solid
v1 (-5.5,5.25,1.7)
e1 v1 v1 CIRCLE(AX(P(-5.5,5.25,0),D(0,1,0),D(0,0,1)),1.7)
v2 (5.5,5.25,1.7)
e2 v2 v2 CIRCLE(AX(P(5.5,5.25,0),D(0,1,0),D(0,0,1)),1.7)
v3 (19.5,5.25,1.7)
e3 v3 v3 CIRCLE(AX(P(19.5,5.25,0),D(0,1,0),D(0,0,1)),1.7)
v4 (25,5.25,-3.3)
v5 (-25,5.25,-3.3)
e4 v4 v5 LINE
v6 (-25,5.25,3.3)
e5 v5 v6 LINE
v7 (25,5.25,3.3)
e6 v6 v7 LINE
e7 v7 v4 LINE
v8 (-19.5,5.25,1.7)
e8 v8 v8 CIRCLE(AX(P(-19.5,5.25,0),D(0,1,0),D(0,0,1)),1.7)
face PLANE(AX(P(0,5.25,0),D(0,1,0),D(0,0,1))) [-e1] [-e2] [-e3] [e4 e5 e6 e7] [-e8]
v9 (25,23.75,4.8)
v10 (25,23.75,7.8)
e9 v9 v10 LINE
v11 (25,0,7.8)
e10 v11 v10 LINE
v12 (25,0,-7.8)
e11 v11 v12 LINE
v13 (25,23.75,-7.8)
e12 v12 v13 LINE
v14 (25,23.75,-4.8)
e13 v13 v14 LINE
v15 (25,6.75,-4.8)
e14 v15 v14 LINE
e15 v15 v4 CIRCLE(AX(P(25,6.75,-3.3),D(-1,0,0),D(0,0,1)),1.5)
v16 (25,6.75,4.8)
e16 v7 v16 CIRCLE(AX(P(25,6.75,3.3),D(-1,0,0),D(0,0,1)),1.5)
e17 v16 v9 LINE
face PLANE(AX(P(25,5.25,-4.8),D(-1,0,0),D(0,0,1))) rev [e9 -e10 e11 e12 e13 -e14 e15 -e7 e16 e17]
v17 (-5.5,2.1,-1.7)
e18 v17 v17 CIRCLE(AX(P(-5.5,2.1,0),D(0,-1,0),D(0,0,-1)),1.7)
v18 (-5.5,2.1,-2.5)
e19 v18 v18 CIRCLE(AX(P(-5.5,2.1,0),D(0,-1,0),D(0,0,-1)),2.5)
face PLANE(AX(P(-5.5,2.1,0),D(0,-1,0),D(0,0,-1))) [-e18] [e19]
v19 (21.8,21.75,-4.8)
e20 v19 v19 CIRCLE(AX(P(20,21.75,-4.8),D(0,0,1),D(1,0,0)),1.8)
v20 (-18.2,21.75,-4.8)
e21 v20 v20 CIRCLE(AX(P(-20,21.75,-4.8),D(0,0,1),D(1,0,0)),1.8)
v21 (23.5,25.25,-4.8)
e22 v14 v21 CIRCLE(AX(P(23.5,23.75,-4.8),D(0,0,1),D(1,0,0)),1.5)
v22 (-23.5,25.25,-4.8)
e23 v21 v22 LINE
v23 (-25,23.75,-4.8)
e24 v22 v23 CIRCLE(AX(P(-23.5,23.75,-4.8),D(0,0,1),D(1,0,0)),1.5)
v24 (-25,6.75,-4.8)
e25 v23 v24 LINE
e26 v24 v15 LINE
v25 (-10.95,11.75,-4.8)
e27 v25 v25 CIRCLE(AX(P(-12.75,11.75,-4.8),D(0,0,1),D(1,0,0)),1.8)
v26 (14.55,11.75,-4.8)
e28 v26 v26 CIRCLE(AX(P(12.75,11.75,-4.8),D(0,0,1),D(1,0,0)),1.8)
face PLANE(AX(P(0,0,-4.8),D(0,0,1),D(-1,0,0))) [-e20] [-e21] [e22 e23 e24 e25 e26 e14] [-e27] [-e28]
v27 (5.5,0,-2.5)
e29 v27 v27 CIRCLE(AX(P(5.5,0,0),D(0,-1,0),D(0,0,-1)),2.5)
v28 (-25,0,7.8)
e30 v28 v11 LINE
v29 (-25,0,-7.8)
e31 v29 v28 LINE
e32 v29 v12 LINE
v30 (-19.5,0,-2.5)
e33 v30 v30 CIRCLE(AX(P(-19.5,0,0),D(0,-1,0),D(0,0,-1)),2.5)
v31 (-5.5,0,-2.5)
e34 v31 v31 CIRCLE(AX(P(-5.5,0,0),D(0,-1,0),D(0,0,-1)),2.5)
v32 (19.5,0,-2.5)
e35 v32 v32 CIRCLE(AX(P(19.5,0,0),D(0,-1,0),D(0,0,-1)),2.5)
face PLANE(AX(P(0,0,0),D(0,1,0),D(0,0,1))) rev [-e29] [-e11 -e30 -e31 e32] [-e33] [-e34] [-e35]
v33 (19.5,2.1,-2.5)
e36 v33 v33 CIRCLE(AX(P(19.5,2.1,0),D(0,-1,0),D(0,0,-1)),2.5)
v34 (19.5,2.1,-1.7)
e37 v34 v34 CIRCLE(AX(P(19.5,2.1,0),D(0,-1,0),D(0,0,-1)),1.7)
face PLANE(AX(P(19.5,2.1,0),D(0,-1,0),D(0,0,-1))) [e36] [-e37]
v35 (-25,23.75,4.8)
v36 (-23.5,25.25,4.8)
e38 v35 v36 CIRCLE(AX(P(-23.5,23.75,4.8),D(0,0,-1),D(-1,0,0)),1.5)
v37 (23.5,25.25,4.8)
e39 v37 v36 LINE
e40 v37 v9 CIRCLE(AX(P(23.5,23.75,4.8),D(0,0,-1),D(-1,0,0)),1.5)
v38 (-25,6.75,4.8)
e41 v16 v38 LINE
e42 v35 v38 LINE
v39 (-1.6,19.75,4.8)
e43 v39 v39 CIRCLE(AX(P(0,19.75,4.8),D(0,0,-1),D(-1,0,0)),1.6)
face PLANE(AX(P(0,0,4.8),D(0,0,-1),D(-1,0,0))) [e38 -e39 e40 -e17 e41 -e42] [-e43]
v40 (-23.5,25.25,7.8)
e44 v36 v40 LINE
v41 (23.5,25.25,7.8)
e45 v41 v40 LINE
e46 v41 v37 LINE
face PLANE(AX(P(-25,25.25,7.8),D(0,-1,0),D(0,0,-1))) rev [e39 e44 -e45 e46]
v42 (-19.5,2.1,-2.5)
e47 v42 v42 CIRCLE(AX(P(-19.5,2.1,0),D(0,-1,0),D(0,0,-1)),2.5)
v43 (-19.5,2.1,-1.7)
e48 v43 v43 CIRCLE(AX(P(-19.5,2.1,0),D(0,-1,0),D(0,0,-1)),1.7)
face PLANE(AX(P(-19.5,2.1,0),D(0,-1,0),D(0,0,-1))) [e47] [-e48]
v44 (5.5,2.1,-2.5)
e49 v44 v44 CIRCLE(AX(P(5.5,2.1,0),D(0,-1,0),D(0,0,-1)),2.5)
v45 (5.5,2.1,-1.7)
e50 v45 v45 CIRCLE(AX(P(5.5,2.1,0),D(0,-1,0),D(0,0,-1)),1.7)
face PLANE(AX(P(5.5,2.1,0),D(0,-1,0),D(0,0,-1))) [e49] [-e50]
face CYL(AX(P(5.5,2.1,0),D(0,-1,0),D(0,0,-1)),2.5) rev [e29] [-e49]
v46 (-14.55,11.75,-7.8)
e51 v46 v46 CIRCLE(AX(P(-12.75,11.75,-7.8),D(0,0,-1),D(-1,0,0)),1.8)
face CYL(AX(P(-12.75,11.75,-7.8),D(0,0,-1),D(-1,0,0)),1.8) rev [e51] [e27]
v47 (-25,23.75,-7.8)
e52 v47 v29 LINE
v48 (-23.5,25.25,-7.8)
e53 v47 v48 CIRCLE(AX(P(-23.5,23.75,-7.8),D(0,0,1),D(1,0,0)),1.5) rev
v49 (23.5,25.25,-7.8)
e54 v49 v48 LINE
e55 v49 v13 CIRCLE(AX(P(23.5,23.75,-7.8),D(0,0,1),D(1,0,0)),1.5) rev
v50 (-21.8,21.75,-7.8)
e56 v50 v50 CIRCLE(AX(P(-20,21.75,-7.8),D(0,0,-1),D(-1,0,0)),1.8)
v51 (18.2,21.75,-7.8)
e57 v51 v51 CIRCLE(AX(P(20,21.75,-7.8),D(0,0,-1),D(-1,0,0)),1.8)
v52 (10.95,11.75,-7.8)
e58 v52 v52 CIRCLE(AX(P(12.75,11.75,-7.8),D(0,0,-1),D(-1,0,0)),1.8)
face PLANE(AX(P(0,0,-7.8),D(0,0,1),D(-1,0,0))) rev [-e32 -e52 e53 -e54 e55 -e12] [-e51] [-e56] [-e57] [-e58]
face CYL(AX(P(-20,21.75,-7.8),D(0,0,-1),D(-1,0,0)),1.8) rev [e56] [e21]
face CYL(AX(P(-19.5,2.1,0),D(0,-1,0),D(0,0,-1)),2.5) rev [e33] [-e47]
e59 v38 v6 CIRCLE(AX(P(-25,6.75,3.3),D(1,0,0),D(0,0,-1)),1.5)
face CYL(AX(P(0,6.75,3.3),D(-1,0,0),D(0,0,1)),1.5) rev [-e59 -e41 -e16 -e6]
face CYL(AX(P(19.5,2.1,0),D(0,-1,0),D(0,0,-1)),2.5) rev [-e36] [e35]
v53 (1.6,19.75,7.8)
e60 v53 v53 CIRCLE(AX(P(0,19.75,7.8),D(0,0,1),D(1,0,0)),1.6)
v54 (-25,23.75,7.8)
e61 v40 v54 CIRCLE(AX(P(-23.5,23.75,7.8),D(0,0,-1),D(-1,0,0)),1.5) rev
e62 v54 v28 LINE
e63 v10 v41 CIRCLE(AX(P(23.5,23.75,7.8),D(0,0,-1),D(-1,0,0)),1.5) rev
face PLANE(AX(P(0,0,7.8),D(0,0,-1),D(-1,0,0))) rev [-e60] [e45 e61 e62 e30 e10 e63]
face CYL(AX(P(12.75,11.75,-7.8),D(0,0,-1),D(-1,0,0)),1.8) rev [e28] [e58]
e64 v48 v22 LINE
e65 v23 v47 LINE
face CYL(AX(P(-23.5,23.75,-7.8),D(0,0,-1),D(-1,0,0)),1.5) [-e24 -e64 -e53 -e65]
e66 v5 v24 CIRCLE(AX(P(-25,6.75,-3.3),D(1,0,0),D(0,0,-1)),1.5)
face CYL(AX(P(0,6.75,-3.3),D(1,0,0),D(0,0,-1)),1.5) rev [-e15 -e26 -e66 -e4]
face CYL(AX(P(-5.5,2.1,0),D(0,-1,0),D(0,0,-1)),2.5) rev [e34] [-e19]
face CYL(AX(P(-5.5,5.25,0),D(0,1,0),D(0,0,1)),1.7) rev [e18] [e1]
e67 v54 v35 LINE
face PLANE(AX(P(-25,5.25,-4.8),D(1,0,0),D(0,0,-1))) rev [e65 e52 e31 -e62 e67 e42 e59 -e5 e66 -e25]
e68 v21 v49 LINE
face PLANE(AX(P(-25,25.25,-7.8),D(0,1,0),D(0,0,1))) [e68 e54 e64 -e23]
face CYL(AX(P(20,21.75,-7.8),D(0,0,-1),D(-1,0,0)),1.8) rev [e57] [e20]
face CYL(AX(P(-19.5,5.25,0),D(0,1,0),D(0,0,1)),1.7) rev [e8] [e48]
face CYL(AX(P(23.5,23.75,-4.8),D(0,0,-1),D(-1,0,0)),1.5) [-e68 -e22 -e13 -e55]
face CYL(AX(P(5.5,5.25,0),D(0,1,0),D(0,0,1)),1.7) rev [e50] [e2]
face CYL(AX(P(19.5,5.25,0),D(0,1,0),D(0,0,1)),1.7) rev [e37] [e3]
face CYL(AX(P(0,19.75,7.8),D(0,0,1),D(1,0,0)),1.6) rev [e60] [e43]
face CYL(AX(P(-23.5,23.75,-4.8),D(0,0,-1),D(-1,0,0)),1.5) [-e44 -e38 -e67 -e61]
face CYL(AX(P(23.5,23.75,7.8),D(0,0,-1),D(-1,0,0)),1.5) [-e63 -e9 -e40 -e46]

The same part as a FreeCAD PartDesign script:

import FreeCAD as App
import Part
import Sketcher
Q = App.Units.Quantity


def edges_at(feature, points):
    """Names of the edges that pass closest to the given points."""
    edges = feature.Shape.Edges
    near = lambda p: min(range(len(edges)), key=lambda i: edges[i].distToShape(Part.Vertex(*p))[0])
    return sorted({f"Edge{near(p) + 1}" for p in points})


def add_polygon(sketch, points):
    """Adds a closed chain of lines whose ends are joined by coincident constraints."""
    first, n = sketch.GeometryCount, len(points)
    for a, b in zip(points, points[1:] + points[:1]):
        sketch.addGeometry(Part.LineSegment(App.Vector(*a, 0), App.Vector(*b, 0)), False)
    for i in range(n):
        sketch.addConstraint(Sketcher.Constraint("Coincident", first + i, 2, first + (i + 1) % n, 1))

doc = App.newDocument("Part")
body = doc.addObject("PartDesign::Body", "Body")

# Sketch on XZ plane
sketch1 = doc.addObject("Sketcher::SketchObject", "Sketch")
body.addObject(sketch1)
sketch1.AttachmentSupport = (doc.XZ_Plane, [""])
sketch1.MapMode = "FlatFace"
add_polygon(sketch1, [(-25, -5), (-25, 5), (25, 5), (25, -5)])  # lines 0-3
sketch1.addConstraint(Sketcher.Constraint("Vertical", 0))
sketch1.addConstraint(Sketcher.Constraint("Horizontal", 1))
sketch1.addConstraint(Sketcher.Constraint("Vertical", 2))
sketch1.addConstraint(Sketcher.Constraint("Horizontal", 3))
sketch1.addConstraint(Sketcher.Constraint("Symmetric", 0, 2, 2, 2, -1, 1))
sketch1.addConstraint(Sketcher.Constraint("DistanceX", 1, 1, 1, 2, Q("50 mm")))
sketch1.addConstraint(Sketcher.Constraint("DistanceY", 0, 1, 0, 2, Q("9.6 mm")))
pad1 = doc.addObject("PartDesign::Pad", "Pad")
body.addObject(pad1)
pad1.Profile = sketch1
pad1.Length = 5.25
pad1.Reversed = True

# Sketch on XZ plane
sketch2 = doc.addObject("Sketcher::SketchObject", "Sketch001")
body.addObject(sketch2)
sketch2.AttachmentSupport = (doc.XZ_Plane, [""])
sketch2.MapMode = "FlatFace"
sketch2.addGeometry(Part.Circle(App.Vector(-19.5, 0, 0), App.Vector(0, 0, 1), 2.5), False)
sketch2.addGeometry(Part.Circle(App.Vector(-5.5, 0, 0), App.Vector(0, 0, 1), 2.5), False)
sketch2.addGeometry(Part.Circle(App.Vector(5.5, 0, 0), App.Vector(0, 0, 1), 2.5), False)
sketch2.addGeometry(Part.Circle(App.Vector(19.5, 0, 0), App.Vector(0, 0, 1), 2.5), False)
sketch2.addConstraint(Sketcher.Constraint("Equal", 0, 1))
sketch2.addConstraint(Sketcher.Constraint("Equal", 1, 2))
sketch2.addConstraint(Sketcher.Constraint("Equal", 2, 3))
sketch2.addConstraint(Sketcher.Constraint("Symmetric", 1, 3, 2, 3, -1, 1))
sketch2.addConstraint(Sketcher.Constraint("Symmetric", 0, 3, 3, 3, -1, 1))
sketch2.addConstraint(Sketcher.Constraint("PointOnObject", 0, 3, -1))
sketch2.addConstraint(Sketcher.Constraint("PointOnObject", 1, 3, -1))
sketch2.addConstraint(Sketcher.Constraint("Diameter", 0, Q("5 mm")))
sketch2.addConstraint(Sketcher.Constraint("DistanceX", 0, 3, 1, 3, Q("14 mm")))
sketch2.addConstraint(Sketcher.Constraint("DistanceX", 1, 3, 2, 3, Q("11 mm")))
pocket1 = doc.addObject("PartDesign::Pocket", "Pocket")
body.addObject(pocket1)
pocket1.Profile = sketch2
pocket1.Length = 2.1

# Sketch on XZ plane
sketch3 = doc.addObject("Sketcher::SketchObject", "Sketch002")
body.addObject(sketch3)
sketch3.AttachmentSupport = (doc.XZ_Plane, [""])
sketch3.MapMode = "FlatFace"
sketch3.AttachmentOffset = App.Placement(App.Vector(0, 0, -5.25), App.Rotation())
sketch3.addGeometry(Part.Circle(App.Vector(-19.5, 0, 0), App.Vector(0, 0, 1), 1.7), False)
sketch3.addGeometry(Part.Circle(App.Vector(-5.5, 0, 0), App.Vector(0, 0, 1), 1.7), False)
sketch3.addGeometry(Part.Circle(App.Vector(5.5, 0, 0), App.Vector(0, 0, 1), 1.7), False)
sketch3.addGeometry(Part.Circle(App.Vector(19.5, 0, 0), App.Vector(0, 0, 1), 1.7), False)
sketch3.addConstraint(Sketcher.Constraint("Equal", 0, 1))
sketch3.addConstraint(Sketcher.Constraint("Equal", 1, 2))
sketch3.addConstraint(Sketcher.Constraint("Equal", 2, 3))
sketch3.addConstraint(Sketcher.Constraint("Symmetric", 1, 3, 2, 3, -1, 1))
sketch3.addConstraint(Sketcher.Constraint("Symmetric", 0, 3, 3, 3, -1, 1))
sketch3.addConstraint(Sketcher.Constraint("PointOnObject", 0, 3, -1))
sketch3.addConstraint(Sketcher.Constraint("PointOnObject", 1, 3, -1))
sketch3.addConstraint(Sketcher.Constraint("Diameter", 0, Q("3.4 mm")))
sketch3.addConstraint(Sketcher.Constraint("DistanceX", 0, 3, 1, 3, Q("14 mm")))
sketch3.addConstraint(Sketcher.Constraint("DistanceX", 1, 3, 2, 3, Q("11 mm")))
doc.recompute()
hole = doc.addObject("PartDesign::Hole", "Hole")
body.addObject(hole)
hole.Profile = sketch3
hole.ThreadType = "None"
hole.Diameter = 3.4
hole.DepthType = "Dimension"
hole.Depth = 7.978537
hole.DrillPoint = "Angled"
hole.DrillPointAngle = 118
hole.Reversed = True

# Sketch on XY plane
sketch4 = doc.addObject("Sketcher::SketchObject", "Sketch003")
body.addObject(sketch4)
sketch4.AttachmentSupport = (doc.XY_Plane, [""])
sketch4.MapMode = "FlatFace"
sketch4.AttachmentOffset = App.Placement(App.Vector(0, 0, 4.8), App.Rotation())
add_polygon(sketch4, [(-25, 25), (-25, 0), (25, 0), (25, 25)])  # lines 0-3
sketch4.addConstraint(Sketcher.Constraint("Vertical", 0))
sketch4.addConstraint(Sketcher.Constraint("Horizontal", 1))
sketch4.addConstraint(Sketcher.Constraint("Vertical", 2))
sketch4.addConstraint(Sketcher.Constraint("Horizontal", 3))
sketch4.addConstraint(Sketcher.Constraint("Symmetric", 0, 2, 1, 2, -1, 1))
sketch4.addConstraint(Sketcher.Constraint("DistanceX", 1, 1, 1, 2, Q("50 mm")))
sketch4.addConstraint(Sketcher.Constraint("DistanceY", 0, 2, 0, 1, Q("25.25 mm")))
pad2 = doc.addObject("PartDesign::Pad", "Pad001")
body.addObject(pad2)
pad2.Profile = sketch4
pad2.Length = 3
doc.recompute()

mirrored = doc.addObject("PartDesign::Mirrored", "Mirrored")
body.addObject(mirrored)
mirrored.Originals = [pad2]
mirrored.MirrorPlane = (doc.XY_Plane, [""])
body.Tip = mirrored
doc.recompute()

fillet = doc.addObject("PartDesign::Fillet", "Fillet")
body.addObject(fillet)
fillet.Base = (mirrored, edges_at(mirrored, [(0, 5.25, 4.8), (0, 5.25, -4.8)]))
fillet.Radius = 1.5

# Sketch on XY plane
sketch5 = doc.addObject("Sketcher::SketchObject", "Sketch004")
body.addObject(sketch5)
sketch5.AttachmentSupport = (doc.XY_Plane, [""])
sketch5.MapMode = "FlatFace"
sketch5.AttachmentOffset = App.Placement(App.Vector(0, 0, 7.8), App.Rotation())
sketch5.addGeometry(Part.Circle(App.Vector(0, 19.8, 0), App.Vector(0, 0, 1), 1.6), False)
sketch5.addConstraint(Sketcher.Constraint("PointOnObject", 0, 3, -2))
sketch5.addConstraint(Sketcher.Constraint("Diameter", 0, Q("3.2 mm")))
sketch5.addConstraint(Sketcher.Constraint("DistanceY", -1, 1, 0, 3, Q("19.75 mm")))
doc.recompute()
hole2 = doc.addObject("PartDesign::Hole", "Hole001")
body.addObject(hole2)
hole2.Profile = sketch5
hole2.ThreadType = "None"
hole2.Diameter = 3.2
hole2.DepthType = "Dimension"
hole2.Depth = 3.038623
hole2.DrillPoint = "Angled"
hole2.DrillPointAngle = 118

# Sketch on XY plane
sketch6 = doc.addObject("Sketcher::SketchObject", "Sketch005")
body.addObject(sketch6)
sketch6.AttachmentSupport = (doc.XY_Plane, [""])
sketch6.MapMode = "FlatFace"
sketch6.AttachmentOffset = App.Placement(App.Vector(0, 0, -7.8), App.Rotation())
sketch6.addGeometry(Part.Circle(App.Vector(20, 21.8, 0), App.Vector(0, 0, 1), 1.8), False)
sketch6.addGeometry(Part.Circle(App.Vector(-20, 21.8, 0), App.Vector(0, 0, 1), 1.8), False)
sketch6.addGeometry(Part.Circle(App.Vector(-12.8, 11.8, 0), App.Vector(0, 0, 1), 1.8), False)
sketch6.addGeometry(Part.Circle(App.Vector(12.8, 11.8, 0), App.Vector(0, 0, 1), 1.8), False)
sketch6.addConstraint(Sketcher.Constraint("Equal", 0, 1))
sketch6.addConstraint(Sketcher.Constraint("Equal", 1, 2))
sketch6.addConstraint(Sketcher.Constraint("Equal", 2, 3))
sketch6.addConstraint(Sketcher.Constraint("Symmetric", 0, 3, 1, 3, -2))
sketch6.addConstraint(Sketcher.Constraint("Symmetric", 2, 3, 3, 3, -2))
sketch6.addConstraint(Sketcher.Constraint("Diameter", 0, Q("3.6 mm")))
sketch6.addConstraint(Sketcher.Constraint("DistanceX", -1, 1, 0, 3, Q("20 mm")))
sketch6.addConstraint(Sketcher.Constraint("DistanceY", 2, 3, 1, 3, Q("10 mm")))
sketch6.addConstraint(Sketcher.Constraint("DistanceX", 2, 3, 3, 3, Q("25.5 mm")))
sketch6.addConstraint(Sketcher.Constraint("DistanceY", -1, 1, 0, 3, Q("21.75 mm")))
doc.recompute()
hole3 = doc.addObject("PartDesign::Hole", "Hole002")
body.addObject(hole3)
hole3.Profile = sketch6
hole3.ThreadType = "None"
hole3.Diameter = 3.6
hole3.DepthType = "Dimension"
hole3.Depth = 3.918451
hole3.DrillPoint = "Angled"
hole3.DrillPointAngle = 118
hole3.Reversed = True
doc.recompute()

fillet2 = doc.addObject("PartDesign::Fillet", "Fillet001")
body.addObject(fillet2)
fillet2.Base = (hole3, edges_at(hole3, [
    (-25, 25.25, 6.3),
    (25, 25.25, 6.3),
    (-25, 25.25, -6.3),
    (25, 25.25, -6.3),
]))
fillet2.Radius = 1.5

doc.recompute()
